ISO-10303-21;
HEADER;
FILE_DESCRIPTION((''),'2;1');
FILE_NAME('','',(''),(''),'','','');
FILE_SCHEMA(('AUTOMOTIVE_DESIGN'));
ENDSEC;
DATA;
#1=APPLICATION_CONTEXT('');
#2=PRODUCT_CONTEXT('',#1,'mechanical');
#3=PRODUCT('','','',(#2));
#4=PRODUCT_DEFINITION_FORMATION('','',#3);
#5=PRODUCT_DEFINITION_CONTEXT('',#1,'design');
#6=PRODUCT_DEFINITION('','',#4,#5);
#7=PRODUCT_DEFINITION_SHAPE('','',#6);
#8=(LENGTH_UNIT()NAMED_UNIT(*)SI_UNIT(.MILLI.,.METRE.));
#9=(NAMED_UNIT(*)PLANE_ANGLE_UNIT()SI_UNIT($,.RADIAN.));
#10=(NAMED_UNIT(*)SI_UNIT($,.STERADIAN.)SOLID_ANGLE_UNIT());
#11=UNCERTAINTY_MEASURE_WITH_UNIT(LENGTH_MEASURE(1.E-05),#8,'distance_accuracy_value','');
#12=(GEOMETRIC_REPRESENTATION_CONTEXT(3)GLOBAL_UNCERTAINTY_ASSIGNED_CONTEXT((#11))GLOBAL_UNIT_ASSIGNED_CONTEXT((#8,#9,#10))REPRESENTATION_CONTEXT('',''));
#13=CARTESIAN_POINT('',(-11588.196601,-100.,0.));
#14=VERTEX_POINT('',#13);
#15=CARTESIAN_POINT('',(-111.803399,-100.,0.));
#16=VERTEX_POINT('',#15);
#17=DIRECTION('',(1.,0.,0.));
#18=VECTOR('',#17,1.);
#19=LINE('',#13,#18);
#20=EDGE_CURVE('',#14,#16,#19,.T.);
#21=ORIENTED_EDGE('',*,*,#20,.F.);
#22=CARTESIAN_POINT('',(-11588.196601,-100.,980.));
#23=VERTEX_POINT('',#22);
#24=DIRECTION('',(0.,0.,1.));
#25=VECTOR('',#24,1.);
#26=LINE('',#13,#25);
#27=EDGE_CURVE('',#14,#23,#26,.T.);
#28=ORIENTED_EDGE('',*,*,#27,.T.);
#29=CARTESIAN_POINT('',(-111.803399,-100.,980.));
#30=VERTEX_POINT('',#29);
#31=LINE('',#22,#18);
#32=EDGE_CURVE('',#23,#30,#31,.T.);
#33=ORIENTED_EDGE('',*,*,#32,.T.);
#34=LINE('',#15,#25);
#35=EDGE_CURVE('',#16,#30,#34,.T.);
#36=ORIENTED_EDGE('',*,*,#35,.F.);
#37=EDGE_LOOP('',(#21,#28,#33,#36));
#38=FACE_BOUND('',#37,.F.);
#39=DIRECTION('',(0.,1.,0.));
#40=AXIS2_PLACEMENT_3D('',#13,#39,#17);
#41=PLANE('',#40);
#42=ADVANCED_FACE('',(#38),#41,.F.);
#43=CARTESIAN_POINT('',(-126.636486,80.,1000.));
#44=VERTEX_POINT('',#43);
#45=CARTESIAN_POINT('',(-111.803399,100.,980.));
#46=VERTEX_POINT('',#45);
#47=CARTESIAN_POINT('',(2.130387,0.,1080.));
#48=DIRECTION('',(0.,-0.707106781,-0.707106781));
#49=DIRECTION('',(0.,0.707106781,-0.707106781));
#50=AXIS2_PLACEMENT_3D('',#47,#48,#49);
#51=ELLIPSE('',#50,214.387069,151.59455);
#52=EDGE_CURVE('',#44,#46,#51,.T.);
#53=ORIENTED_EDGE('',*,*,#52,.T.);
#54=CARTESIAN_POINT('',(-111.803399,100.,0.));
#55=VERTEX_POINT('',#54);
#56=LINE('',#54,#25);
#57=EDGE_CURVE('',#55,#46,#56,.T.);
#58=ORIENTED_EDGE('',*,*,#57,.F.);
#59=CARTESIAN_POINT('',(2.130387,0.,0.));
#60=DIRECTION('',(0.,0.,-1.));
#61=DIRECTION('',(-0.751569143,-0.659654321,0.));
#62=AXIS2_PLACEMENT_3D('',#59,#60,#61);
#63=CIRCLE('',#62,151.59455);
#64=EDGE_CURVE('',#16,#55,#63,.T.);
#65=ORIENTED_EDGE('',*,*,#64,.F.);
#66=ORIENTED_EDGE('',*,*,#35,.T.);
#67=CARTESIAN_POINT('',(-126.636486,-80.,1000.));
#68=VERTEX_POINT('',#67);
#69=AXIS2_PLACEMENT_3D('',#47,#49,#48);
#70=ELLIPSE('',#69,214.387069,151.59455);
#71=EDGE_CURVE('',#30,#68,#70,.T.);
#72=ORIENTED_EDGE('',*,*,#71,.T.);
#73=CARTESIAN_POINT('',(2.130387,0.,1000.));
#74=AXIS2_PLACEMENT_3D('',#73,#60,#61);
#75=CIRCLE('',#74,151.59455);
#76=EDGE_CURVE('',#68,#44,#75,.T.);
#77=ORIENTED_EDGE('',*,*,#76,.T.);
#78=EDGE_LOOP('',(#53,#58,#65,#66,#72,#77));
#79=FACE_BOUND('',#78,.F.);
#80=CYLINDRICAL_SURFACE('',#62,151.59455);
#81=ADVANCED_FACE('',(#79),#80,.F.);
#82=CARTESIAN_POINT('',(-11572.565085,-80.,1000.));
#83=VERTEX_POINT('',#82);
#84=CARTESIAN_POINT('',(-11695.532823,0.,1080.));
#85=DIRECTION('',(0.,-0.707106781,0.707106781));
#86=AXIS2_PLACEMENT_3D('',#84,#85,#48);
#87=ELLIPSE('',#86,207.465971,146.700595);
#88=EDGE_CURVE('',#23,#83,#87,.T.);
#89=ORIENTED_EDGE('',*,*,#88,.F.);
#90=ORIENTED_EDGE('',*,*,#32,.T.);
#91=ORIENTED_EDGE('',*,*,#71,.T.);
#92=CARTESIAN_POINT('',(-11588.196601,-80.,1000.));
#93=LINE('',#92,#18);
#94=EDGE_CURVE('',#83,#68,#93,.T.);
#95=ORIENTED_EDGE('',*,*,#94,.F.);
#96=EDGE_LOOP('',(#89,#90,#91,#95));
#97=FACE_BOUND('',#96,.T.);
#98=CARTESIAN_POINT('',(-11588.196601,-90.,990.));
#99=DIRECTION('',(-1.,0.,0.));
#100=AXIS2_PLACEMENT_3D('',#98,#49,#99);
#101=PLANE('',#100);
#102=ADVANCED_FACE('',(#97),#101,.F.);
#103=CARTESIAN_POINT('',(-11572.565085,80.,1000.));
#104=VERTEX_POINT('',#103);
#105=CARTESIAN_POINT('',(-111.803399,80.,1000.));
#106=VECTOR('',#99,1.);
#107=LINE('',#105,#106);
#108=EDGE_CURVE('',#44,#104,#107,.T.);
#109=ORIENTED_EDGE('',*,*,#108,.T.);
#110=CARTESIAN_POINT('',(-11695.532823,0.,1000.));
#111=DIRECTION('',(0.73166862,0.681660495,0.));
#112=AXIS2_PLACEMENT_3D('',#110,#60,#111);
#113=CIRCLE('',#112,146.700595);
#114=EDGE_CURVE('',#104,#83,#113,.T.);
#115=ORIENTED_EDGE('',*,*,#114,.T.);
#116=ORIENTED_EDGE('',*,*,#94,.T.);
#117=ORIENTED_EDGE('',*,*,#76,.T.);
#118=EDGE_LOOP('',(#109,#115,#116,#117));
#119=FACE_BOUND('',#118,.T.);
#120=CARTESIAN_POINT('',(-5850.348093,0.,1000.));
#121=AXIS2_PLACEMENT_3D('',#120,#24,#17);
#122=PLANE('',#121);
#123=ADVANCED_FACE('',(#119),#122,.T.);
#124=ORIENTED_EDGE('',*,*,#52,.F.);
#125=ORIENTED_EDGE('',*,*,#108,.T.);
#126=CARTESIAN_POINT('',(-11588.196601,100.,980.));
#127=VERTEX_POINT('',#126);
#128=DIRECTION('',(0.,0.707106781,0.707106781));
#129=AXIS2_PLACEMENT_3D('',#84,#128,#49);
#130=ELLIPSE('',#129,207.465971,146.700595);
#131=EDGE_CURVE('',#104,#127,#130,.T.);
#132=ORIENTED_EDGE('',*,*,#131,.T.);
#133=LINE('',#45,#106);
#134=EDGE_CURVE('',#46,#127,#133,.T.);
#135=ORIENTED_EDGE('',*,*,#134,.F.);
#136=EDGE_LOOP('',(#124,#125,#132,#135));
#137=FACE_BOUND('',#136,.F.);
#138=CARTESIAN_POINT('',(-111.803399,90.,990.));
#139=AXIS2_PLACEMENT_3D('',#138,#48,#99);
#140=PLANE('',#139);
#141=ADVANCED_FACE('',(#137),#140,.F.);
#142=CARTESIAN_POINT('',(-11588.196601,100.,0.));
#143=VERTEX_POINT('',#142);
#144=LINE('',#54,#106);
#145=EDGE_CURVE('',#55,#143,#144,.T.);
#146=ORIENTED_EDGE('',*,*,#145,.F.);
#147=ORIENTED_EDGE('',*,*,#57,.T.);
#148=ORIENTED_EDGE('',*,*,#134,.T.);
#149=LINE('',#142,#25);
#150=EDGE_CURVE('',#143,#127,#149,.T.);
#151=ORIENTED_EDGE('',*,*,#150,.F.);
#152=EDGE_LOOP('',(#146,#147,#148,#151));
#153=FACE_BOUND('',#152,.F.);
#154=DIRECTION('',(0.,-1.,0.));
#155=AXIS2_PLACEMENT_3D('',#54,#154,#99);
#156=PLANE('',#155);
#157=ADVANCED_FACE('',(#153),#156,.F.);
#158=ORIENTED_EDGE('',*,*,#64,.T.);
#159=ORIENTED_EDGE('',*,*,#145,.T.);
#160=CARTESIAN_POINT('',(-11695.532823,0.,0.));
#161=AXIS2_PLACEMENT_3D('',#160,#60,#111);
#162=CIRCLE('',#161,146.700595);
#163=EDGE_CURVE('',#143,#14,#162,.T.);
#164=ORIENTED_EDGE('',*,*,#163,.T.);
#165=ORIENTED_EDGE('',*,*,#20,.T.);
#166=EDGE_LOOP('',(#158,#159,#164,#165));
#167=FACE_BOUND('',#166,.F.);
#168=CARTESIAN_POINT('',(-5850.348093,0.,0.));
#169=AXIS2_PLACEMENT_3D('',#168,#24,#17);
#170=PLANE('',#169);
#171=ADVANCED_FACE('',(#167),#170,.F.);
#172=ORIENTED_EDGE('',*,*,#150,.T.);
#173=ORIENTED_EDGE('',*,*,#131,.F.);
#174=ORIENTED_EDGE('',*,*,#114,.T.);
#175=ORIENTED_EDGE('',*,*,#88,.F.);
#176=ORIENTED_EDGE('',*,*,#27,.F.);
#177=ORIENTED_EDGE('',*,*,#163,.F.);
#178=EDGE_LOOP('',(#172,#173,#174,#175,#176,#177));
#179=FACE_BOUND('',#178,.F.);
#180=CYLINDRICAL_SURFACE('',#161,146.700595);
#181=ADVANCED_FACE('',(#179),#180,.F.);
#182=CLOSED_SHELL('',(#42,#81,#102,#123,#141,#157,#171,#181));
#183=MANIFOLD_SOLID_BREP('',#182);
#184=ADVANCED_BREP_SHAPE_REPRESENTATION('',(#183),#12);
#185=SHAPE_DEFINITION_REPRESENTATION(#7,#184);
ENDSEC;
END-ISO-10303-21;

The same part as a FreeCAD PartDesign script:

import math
import FreeCAD as App
import Part
import Sketcher


def edges_at(feature, points):
    """Names of the edges that pass closest to the given points."""
    edges = feature.Shape.Edges
    near = lambda p: min(range(len(edges)), key=lambda i: edges[i].distToShape(Part.Vertex(*p))[0])
    return sorted({f"Edge{near(p) + 1}" for p in points})

doc = App.newDocument("Part")
body = doc.addObject("PartDesign::Body", "Body")

sketch1 = doc.addObject("Sketcher::SketchObject", "Sketch")
body.addObject(sketch1)
sketch1.AttachmentSupport = (doc.XY_Plane, [""])
sketch1.MapMode = "FlatFace"
sketch1.addGeometry([
    Part.ArcOfCircle(Part.Circle(App.Vector(2.130387, 0, 0), App.Vector(0, 0, 1), 151.59455), math.radians(138.726485), math.radians(221.273515)),
    Part.LineSegment(App.Vector(-111.803399, 100, 0), App.Vector(-11588.196601, 100, 0)),
    Part.ArcOfCircle(Part.Circle(App.Vector(-11695.532823, 0, 0), App.Vector(0, 0, 1), 146.700595), math.radians(-42.973537), math.radians(42.973537)),
    Part.LineSegment(App.Vector(-11588.196601, -100, 0), App.Vector(-111.803399, -100, 0)),
], False)
sketch1.addConstraint([
    Sketcher.Constraint("Coincident", 0, 1, 1, 1),
    Sketcher.Constraint("Coincident", 1, 2, 2, 2),
    Sketcher.Constraint("Coincident", 2, 1, 3, 1),
    Sketcher.Constraint("Coincident", 3, 2, 0, 2),
    Sketcher.Constraint("Horizontal", 1),
    Sketcher.Constraint("Horizontal", 3),
    Sketcher.Constraint("Symmetric", 1, 2, 2, 1, -1),
    Sketcher.Constraint("PointOnObject", 0, 3, -1),
    Sketcher.Constraint("DistanceY", -1, 1, 0, 1, 100.0),
    Sketcher.Constraint("Radius", 0, 151.59455),
    Sketcher.Constraint("DistanceX", 1, 2, 1, 1, 11476.393202),
    Sketcher.Constraint("Radius", 2, 146.700595),
    Sketcher.Constraint("DistanceX", 0, 1, -1, 1, 111.803399),
])
pad1 = doc.addObject("PartDesign::Pad", "Pad")
body.addObject(pad1)
pad1.Profile = sketch1
pad1.Length = 1000
doc.recompute()

chamfer = doc.addObject("PartDesign::Chamfer", "Chamfer")
body.addObject(chamfer)
chamfer.Base = (pad1, edges_at(pad1, [(-5850, -100, 1000)]))
chamfer.Size = 20
doc.recompute()

chamfer2 = doc.addObject("PartDesign::Chamfer", "Chamfer001")
body.addObject(chamfer2)
chamfer2.Base = (chamfer, edges_at(chamfer, [(-5850, 100, 1000)]))
chamfer2.Size = 20

doc.recompute()
